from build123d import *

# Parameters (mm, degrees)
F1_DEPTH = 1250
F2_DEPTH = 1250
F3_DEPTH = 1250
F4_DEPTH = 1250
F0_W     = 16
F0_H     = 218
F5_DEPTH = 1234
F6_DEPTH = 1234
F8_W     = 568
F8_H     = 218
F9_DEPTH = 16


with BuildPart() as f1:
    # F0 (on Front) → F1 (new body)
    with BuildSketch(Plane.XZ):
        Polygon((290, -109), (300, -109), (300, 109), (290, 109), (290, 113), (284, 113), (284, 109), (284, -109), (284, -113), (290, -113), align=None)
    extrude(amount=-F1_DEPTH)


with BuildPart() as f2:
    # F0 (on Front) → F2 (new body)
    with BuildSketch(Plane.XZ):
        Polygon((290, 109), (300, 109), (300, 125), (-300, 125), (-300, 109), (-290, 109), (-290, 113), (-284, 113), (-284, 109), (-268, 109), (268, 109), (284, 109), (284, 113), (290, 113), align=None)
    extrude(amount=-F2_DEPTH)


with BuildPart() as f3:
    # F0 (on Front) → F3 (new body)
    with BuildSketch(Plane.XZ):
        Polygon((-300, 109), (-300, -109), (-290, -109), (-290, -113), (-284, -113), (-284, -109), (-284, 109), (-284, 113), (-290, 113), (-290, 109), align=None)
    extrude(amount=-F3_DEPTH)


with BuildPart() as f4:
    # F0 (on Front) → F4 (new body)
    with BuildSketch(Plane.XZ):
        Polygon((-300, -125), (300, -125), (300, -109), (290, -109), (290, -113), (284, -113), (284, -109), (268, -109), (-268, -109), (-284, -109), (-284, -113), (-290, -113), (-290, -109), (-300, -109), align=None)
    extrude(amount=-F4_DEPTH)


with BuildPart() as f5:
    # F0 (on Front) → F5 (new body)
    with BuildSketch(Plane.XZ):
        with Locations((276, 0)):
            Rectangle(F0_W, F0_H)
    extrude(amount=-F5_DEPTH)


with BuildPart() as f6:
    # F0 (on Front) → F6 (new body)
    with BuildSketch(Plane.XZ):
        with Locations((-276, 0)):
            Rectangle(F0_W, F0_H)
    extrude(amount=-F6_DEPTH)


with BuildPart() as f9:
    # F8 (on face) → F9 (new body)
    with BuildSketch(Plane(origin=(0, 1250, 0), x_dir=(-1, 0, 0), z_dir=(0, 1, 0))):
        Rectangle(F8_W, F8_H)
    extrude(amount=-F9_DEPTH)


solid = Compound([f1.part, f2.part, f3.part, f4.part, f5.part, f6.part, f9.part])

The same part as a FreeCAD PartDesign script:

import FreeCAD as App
import Part
import Sketcher
Q = App.Units.Quantity


def add_polygon(sketch, points):
    """Adds a closed chain of lines whose ends are joined by coincident constraints."""
    first, n = sketch.GeometryCount, len(points)
    for a, b in zip(points, points[1:] + points[:1]):
        sketch.addGeometry(Part.LineSegment(App.Vector(*a, 0), App.Vector(*b, 0)), False)
    for i in range(n):
        sketch.addConstraint(Sketcher.Constraint("Coincident", first + i, 2, first + (i + 1) % n, 1))

doc = App.newDocument("Part")
body = doc.addObject("PartDesign::Body", "Body")

# Sketch on XZ plane
sketch1 = body.newObject("Sketcher::SketchObject", "Sketch")
sketch1.AttachmentSupport = (doc.getObject("XZ_Plane"), [""])
sketch1.MapMode = "FlatFace"
add_polygon(sketch1, [(290, -109), (300, -109), (300, 109), (290, 109), (290, 113), (284, 113), (284, -113), (290, -113)])  # lines 0-7
sketch1.addConstraint([
    Sketcher.Constraint("Horizontal", 0),
    Sketcher.Constraint("Vertical", 1),
    Sketcher.Constraint("Horizontal", 2),
    Sketcher.Constraint("Vertical", 3),
    Sketcher.Constraint("Horizontal", 4),
    Sketcher.Constraint("Vertical", 5),
    Sketcher.Constraint("Horizontal", 6),
    Sketcher.Constraint("Vertical", 7),
    Sketcher.Constraint("Symmetric", 3, 2, 6, 2, -1),
    Sketcher.Constraint("Equal", 3, 7),
    Sketcher.Constraint("DistanceX", 0, 1, 0, 2, Q("10 mm")),
    Sketcher.Constraint("DistanceX", 4, 2, 4, 1, Q("6 mm")),
    Sketcher.Constraint("DistanceY", 1, 1, 1, 2, Q("218 mm")),
    Sketcher.Constraint("DistanceY", 3, 1, 3, 2, Q("4 mm")),
    Sketcher.Constraint("DistanceX", -1, 1, 0, 2, Q("300 mm")),
])
pad1 = body.newObject("PartDesign::Pad", "Pad")
pad1.Profile = sketch1
pad1.Length = 1250
pad1.Reversed = True
body2 = doc.addObject("PartDesign::Body", "Body001")

# Sketch on XZ plane
sketch2 = body2.newObject("Sketcher::SketchObject", "Sketch001")
sketch2.AttachmentSupport = (doc.getObject("XZ_Plane001"), [""])
sketch2.MapMode = "FlatFace"
add_polygon(sketch2, [(290, 109), (300, 109), (300, 125), (-300, 125), (-300, 109), (-290, 109), (-290, 113), (-284, 113), (-284, 109), (284, 109), (284, 113), (290, 113)])  # lines 0-11
sketch2.addConstraint([
    Sketcher.Constraint("Horizontal", 0),
    Sketcher.Constraint("Vertical", 1),
    Sketcher.Constraint("Horizontal", 2),
    Sketcher.Constraint("Vertical", 3),
    Sketcher.Constraint("Horizontal", 4),
    Sketcher.Constraint("Vertical", 5),
    Sketcher.Constraint("Horizontal", 6),
    Sketcher.Constraint("Vertical", 7),
    Sketcher.Constraint("Horizontal", 8),
    Sketcher.Constraint("Vertical", 9),
    Sketcher.Constraint("Horizontal", 10),
    Sketcher.Constraint("Vertical", 11),
    Sketcher.Constraint("Symmetric", 0, 2, 3, 2, -2),
    Sketcher.Constraint("Symmetric", 6, 2, 9, 2, -2),
    Sketcher.Constraint("Horizontal", 4, 2, 7, 2),
    Sketcher.Constraint("Equal", 0, 4),
    Sketcher.Constraint("DistanceX", 0, 1, 0, 2, Q("10 mm")),
    Sketcher.Constraint("DistanceX", 2, 2, 2, 1, Q("600 mm")),
    Sketcher.Constraint("DistanceX", 6, 1, 6, 2, Q("6 mm")),
    Sketcher.Constraint("DistanceY", 1, 1, 1, 2, Q("16 mm")),
    Sketcher.Constraint("DistanceY", 5, 1, 5, 2, Q("4 mm")),
    Sketcher.Constraint("DistanceY", -1, 1, 0, 2, Q("109 mm")),
])
pad2 = body2.newObject("PartDesign::Pad", "Pad001")
pad2.Profile = sketch2
pad2.Length = 1250
pad2.Reversed = True
body3 = doc.addObject("PartDesign::Body", "Body002")

# Sketch on XZ plane
sketch3 = body3.newObject("Sketcher::SketchObject", "Sketch002")
sketch3.AttachmentSupport = (doc.getObject("XZ_Plane002"), [""])
sketch3.MapMode = "FlatFace"
add_polygon(sketch3, [(-300, 109), (-300, -109), (-290, -109), (-290, -113), (-284, -113), (-284, 113), (-290, 113), (-290, 109)])  # lines 0-7
sketch3.addConstraint([
    Sketcher.Constraint("Vertical", 0),
    Sketcher.Constraint("Horizontal", 1),
    Sketcher.Constraint("Vertical", 2),
    Sketcher.Constraint("Horizontal", 3),
    Sketcher.Constraint("Vertical", 4),
    Sketcher.Constraint("Horizontal", 5),
    Sketcher.Constraint("Vertical", 6),
    Sketcher.Constraint("Horizontal", 7),
    Sketcher.Constraint("Symmetric", 2, 2, 5, 2, -1),
    Sketcher.Constraint("Equal", 2, 6),
    Sketcher.Constraint("DistanceX", 1, 1, 1, 2, Q("10 mm")),
    Sketcher.Constraint("DistanceX", 3, 1, 3, 2, Q("6 mm")),
    Sketcher.Constraint("DistanceY", 0, 2, 0, 1, Q("218 mm")),
    Sketcher.Constraint("DistanceY", 2, 2, 2, 1, Q("4 mm")),
    Sketcher.Constraint("DistanceX", 0, 2, -1, 1, Q("300 mm")),
])
pad3 = body3.newObject("PartDesign::Pad", "Pad002")
pad3.Profile = sketch3
pad3.Length = 1250
pad3.Reversed = True
body4 = doc.addObject("PartDesign::Body", "Body003")

# Sketch on XZ plane
sketch4 = body4.newObject("Sketcher::SketchObject", "Sketch003")
sketch4.AttachmentSupport = (doc.getObject("XZ_Plane003"), [""])
sketch4.MapMode = "FlatFace"
add_polygon(sketch4, [(-300, -125), (300, -125), (300, -109), (290, -109), (290, -113), (284, -113), (284, -109), (-284, -109), (-284, -113), (-290, -113), (-290, -109), (-300, -109)])  # lines 0-11
sketch4.addConstraint([
    Sketcher.Constraint("Horizontal", 0),
    Sketcher.Constraint("Vertical", 1),
    Sketcher.Constraint("Horizontal", 2),
    Sketcher.Constraint("Vertical", 3),
    Sketcher.Constraint("Horizontal", 4),
    Sketcher.Constraint("Vertical", 5),
    Sketcher.Constraint("Horizontal", 6),
    Sketcher.Constraint("Vertical", 7),
    Sketcher.Constraint("Horizontal", 8),
    Sketcher.Constraint("Vertical", 9),
    Sketcher.Constraint("Horizontal", 10),
    Sketcher.Constraint("Vertical", 11),
    Sketcher.Constraint("Symmetric", 4, 2, 7, 2, -2),
    Sketcher.Constraint("Symmetric", 2, 2, 9, 2, -2),
    Sketcher.Constraint("Horizontal", 2, 2, 5, 2),
    Sketcher.Constraint("Equal", 2, 10),
    Sketcher.Constraint("DistanceX", 0, 1, 0, 2, Q("600 mm")),
    Sketcher.Constraint("DistanceX", 2, 2, 2, 1, Q("10 mm")),
    Sketcher.Constraint("DistanceX", 4, 2, 4, 1, Q("6 mm")),
    Sketcher.Constraint("DistanceY", 1, 1, 1, 2, Q("16 mm")),
    Sketcher.Constraint("DistanceY", 3, 2, 3, 1, Q("4 mm")),
    Sketcher.Constraint("DistanceY", 0, 2, -1, 1, Q("125 mm")),
])
pad4 = body4.newObject("PartDesign::Pad", "Pad003")
pad4.Profile = sketch4
pad4.Length = 1250
pad4.Reversed = True
body5 = doc.addObject("PartDesign::Body", "Body004")

# Sketch on XZ plane
sketch5 = body5.newObject("Sketcher::SketchObject", "Sketch004")
sketch5.AttachmentSupport = (doc.getObject("XZ_Plane004"), [""])
sketch5.MapMode = "FlatFace"
add_polygon(sketch5, [(268, 109), (268, -109), (284, -109), (284, 109)])  # lines 0-3
sketch5.addConstraint([
    Sketcher.Constraint("Vertical", 0),
    Sketcher.Constraint("Horizontal", 1),
    Sketcher.Constraint("Vertical", 2),
    Sketcher.Constraint("Horizontal", 3),
    Sketcher.Constraint("DistanceX", 1, 1, 1, 2, Q("16 mm")),
    Sketcher.Constraint("DistanceY", 0, 2, 0, 1, Q("218 mm")),
    Sketcher.Constraint("DistanceX", -1, 1, 0, 2, Q("268 mm")),
    Sketcher.Constraint("DistanceY", 0, 2, -1, 1, Q("109 mm")),
])
pad5 = body5.newObject("PartDesign::Pad", "Pad004")
pad5.Profile = sketch5
pad5.Length = 1234
pad5.Reversed = True
body6 = doc.addObject("PartDesign::Body", "Body005")

# Sketch on XZ plane
sketch6 = body6.newObject("Sketcher::SketchObject", "Sketch005")
sketch6.AttachmentSupport = (doc.getObject("XZ_Plane005"), [""])
sketch6.MapMode = "FlatFace"
add_polygon(sketch6, [(-284, 109), (-284, -109), (-268, -109), (-268, 109)])  # lines 0-3
sketch6.addConstraint([
    Sketcher.Constraint("Vertical", 0),
    Sketcher.Constraint("Horizontal", 1),
    Sketcher.Constraint("Vertical", 2),
    Sketcher.Constraint("Horizontal", 3),
    Sketcher.Constraint("DistanceX", 1, 1, 1, 2, Q("16 mm")),
    Sketcher.Constraint("DistanceY", 0, 2, 0, 1, Q("218 mm")),
    Sketcher.Constraint("DistanceX", 0, 2, -1, 1, Q("284 mm")),
    Sketcher.Constraint("DistanceY", 0, 2, -1, 1, Q("109 mm")),
])
pad6 = body6.newObject("PartDesign::Pad", "Pad005")
pad6.Profile = sketch6
pad6.Length = 1234
pad6.Reversed = True
body7 = doc.addObject("PartDesign::Body", "Body006")

# Sketch on XZ plane
sketch7 = body7.newObject("Sketcher::SketchObject", "Sketch006")
sketch7.AttachmentSupport = (doc.getObject("XZ_Plane006"), [""])
sketch7.MapMode = "FlatFace"
sketch7.AttachmentOffset = App.Placement(App.Vector(0, 0, -1250), App.Rotation())
add_polygon(sketch7, [(284, 109), (284, -109), (-284, -109), (-284, 109)])  # lines 0-3
sketch7.addConstraint([
    Sketcher.Constraint("Vertical", 0),
    Sketcher.Constraint("Horizontal", 1),
    Sketcher.Constraint("Vertical", 2),
    Sketcher.Constraint("Horizontal", 3),
    Sketcher.Constraint("Symmetric", 0, 2, 2, 2, -1, 1),
    Sketcher.Constraint("DistanceX", 1, 2, 1, 1, Q("568 mm")),
    Sketcher.Constraint("DistanceY", 0, 2, 0, 1, Q("218 mm")),
])
pad7 = body7.newObject("PartDesign::Pad", "Pad006")
pad7.Profile = sketch7
pad7.Length = 16

doc.recompute()
